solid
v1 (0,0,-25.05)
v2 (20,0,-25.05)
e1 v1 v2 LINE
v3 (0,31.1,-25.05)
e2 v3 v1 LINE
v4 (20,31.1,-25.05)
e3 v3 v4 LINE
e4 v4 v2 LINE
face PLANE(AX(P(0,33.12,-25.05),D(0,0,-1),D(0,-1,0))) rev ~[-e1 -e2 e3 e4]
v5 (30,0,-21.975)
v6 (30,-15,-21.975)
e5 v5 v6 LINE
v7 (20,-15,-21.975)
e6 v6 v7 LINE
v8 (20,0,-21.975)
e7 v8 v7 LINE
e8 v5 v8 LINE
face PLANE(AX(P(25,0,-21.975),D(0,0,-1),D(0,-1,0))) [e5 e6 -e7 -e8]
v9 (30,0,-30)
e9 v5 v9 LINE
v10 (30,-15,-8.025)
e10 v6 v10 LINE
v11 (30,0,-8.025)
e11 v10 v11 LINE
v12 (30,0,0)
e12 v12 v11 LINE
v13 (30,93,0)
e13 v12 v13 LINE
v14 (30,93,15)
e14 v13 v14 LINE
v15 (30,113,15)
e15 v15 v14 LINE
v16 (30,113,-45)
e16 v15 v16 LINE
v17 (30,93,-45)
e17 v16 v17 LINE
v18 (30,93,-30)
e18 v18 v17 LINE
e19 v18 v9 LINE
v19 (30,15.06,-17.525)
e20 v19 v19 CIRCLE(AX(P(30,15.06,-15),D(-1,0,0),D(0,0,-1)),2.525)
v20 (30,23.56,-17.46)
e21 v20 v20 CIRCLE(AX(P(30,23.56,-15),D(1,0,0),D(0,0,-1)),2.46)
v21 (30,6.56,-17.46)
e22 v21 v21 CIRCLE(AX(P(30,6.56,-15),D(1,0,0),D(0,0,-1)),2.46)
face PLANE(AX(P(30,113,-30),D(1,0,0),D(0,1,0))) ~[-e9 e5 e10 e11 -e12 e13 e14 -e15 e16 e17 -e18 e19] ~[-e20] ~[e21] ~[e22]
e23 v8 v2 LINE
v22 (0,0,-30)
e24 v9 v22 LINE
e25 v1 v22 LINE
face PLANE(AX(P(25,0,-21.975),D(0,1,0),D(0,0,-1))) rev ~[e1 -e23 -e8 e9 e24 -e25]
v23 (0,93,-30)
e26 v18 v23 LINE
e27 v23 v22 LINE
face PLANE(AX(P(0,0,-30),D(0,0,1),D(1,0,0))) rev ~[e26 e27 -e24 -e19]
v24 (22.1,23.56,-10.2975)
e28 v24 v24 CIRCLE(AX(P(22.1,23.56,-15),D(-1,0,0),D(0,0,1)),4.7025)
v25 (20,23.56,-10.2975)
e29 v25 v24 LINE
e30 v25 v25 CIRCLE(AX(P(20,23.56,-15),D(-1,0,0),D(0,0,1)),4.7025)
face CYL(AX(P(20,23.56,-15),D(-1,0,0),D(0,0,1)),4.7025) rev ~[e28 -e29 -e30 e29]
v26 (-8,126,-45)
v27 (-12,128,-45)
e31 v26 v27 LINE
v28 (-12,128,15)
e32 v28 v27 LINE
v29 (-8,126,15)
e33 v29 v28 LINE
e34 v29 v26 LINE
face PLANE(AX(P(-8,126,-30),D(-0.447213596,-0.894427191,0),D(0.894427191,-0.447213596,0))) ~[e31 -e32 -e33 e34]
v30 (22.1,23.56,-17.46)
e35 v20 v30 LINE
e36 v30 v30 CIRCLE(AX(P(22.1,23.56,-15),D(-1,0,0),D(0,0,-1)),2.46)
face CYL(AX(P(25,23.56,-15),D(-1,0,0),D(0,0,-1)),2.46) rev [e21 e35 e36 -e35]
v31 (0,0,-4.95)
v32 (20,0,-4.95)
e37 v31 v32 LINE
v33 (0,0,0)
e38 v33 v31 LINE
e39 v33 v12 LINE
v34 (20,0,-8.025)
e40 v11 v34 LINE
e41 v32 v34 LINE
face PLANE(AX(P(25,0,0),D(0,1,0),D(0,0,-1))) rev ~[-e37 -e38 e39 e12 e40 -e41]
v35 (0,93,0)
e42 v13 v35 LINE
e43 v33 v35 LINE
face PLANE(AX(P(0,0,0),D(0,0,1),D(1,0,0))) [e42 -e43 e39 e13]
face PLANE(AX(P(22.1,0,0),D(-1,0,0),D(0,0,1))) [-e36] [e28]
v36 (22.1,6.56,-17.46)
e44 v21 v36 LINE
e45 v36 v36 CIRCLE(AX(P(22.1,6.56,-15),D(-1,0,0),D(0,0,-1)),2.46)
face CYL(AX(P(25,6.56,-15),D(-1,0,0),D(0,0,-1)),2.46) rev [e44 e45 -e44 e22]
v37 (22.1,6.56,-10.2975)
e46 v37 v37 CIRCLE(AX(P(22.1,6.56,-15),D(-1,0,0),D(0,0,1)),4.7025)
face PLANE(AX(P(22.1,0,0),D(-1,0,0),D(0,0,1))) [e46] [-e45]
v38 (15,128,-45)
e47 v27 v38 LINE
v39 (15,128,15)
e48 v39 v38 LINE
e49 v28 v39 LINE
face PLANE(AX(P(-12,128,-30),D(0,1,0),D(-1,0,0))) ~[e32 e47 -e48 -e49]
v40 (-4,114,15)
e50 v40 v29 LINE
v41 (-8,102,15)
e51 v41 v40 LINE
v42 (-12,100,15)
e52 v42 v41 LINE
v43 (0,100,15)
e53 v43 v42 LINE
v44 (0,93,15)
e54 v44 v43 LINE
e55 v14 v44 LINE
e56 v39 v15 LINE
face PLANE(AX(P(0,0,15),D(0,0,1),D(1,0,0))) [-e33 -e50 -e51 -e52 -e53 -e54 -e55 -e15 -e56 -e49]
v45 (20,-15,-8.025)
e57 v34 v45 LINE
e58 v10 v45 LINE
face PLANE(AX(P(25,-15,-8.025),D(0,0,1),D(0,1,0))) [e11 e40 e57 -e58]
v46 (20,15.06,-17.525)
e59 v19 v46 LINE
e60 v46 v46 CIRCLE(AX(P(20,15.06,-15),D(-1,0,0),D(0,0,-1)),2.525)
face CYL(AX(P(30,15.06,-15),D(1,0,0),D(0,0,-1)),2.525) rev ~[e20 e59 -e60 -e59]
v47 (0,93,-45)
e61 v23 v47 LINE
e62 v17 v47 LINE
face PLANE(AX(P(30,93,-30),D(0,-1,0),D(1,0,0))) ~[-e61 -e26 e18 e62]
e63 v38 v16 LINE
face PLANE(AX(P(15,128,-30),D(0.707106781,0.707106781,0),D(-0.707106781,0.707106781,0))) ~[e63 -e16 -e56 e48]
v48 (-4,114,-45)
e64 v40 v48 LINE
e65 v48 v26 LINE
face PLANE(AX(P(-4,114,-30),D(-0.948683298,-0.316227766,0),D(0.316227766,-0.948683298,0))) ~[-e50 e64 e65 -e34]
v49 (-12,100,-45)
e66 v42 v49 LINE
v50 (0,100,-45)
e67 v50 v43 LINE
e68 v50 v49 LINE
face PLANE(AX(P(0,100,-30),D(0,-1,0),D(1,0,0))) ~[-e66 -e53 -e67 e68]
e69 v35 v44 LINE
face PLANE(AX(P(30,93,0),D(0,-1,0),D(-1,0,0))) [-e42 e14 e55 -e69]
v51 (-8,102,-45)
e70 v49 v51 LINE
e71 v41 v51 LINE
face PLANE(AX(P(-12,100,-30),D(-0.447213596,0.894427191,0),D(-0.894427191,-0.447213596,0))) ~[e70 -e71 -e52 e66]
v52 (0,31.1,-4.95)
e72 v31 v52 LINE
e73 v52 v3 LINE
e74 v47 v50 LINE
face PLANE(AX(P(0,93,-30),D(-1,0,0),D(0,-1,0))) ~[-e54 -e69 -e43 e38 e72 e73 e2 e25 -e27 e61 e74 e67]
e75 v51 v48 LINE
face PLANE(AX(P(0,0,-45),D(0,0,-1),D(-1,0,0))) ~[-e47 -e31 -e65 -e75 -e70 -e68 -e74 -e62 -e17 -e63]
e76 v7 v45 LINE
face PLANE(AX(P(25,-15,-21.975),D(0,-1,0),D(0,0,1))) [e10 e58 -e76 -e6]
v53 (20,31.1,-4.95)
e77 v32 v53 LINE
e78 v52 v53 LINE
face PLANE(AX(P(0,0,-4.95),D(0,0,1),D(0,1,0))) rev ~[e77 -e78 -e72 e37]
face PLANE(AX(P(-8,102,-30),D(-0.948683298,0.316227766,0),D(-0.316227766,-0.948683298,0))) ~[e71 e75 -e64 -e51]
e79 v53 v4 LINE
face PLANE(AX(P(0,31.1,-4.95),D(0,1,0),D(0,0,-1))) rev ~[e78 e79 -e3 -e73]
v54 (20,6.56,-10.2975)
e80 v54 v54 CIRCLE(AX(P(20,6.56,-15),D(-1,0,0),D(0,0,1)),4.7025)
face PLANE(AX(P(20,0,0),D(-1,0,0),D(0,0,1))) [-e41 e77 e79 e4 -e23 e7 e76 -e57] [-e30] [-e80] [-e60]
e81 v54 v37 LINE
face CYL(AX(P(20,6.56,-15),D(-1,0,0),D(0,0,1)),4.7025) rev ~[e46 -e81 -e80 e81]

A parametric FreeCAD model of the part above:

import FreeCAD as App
import Part
import Sketcher

V = App.Vector
Q = App.Units.Quantity


def add_polygon(sketch, points):
    """Adds a closed chain of lines whose ends are joined by coincident constraints."""
    first, n = sketch.GeometryCount, len(points)
    for a, b in zip(points, points[1:] + points[:1]):
        sketch.addGeometry(Part.LineSegment(App.Vector(*a, 0), App.Vector(*b, 0)), False)
    for i in range(n):
        sketch.addConstraint(Sketcher.Constraint("Coincident", first + i, 2, first + (i + 1) % n, 1))

doc = App.newDocument("Part")
params = doc.addObject("Spreadsheet::Sheet", "Params")
for row, (alias, value) in enumerate([
    ("sketch1_width", "25 mm"),
    ("sketch1_height", "40 mm"),
    ("pad1_length", "30 mm"),
    ("sketch2_diameter", "4.92 mm"),
    ("pocket1_length", "30 mm"),
    ("sketch3_height", "20.1 mm"),
    ("sketch3_width", "33.12 mm"),
    ("pocket2_length", "20 mm"),
    ("sketch4_height", "13.95 mm"),
    ("sketch4_width", "5 mm"),
    ("pad2_length", "15 mm"),
    ("sketch5_diameter", "4.92 mm"),
    ("pocket3_length", "2.1 mm"),
    ("sketch6_diameter", "4.92 mm"),
    ("pocket4_length", "10 mm"),
    ("sketch7_diameter", "4.92 mm"),
    ("pocket5_length", "2.1 mm"),
    ("sketch8_diameter", "4.92 mm"),
    ("sketch8_width", "40 mm"),
    ("sketch8_width2", "15 mm"),
    ("sketch8_height", "30 mm"),
    ("sketch8_height2", "13.95 mm"),
    ("pad3_length", "5 mm"),
    ("sketch9_width", "30 mm"),
    ("pad4_length", "30 mm"),
    ("sketch10_diameter", "5.05 mm"),
    ("pocket6_length", "30 mm"),
    ("sketch11_width", "12 mm"),
    ("sketch11_width2", "30 mm"),
    ("sketch11_width3", "27 mm"),
    ("sketch11_height", "43 mm"),
    ("pad5_length", "30 mm"),
    ("sketch12_width", "2.02 mm"),
    ("sketch12_height", "20.1 mm"),
    ("pad6_length", "20 mm"),
    ("sketch13_width", "30 mm"),
    ("sketch13_height", "20 mm"),
    ("sketch13_width2", "12 mm"),
    ("sketch13_width3", "27 mm"),
    ("sketch13_height2", "7 mm"),
    ("pad7_length", "15 mm"),
], start=1):
    params.set(f"A{row}", alias)
    params.set(f"B{row}", "=" + value)
    params.setAlias(f"B{row}", alias)

body = doc.addObject("PartDesign::Body", "Body")

sketch1 = body.newObject("Sketcher::SketchObject", "Sketch")
sketch1.AttachmentSupport = (doc.getObject("XY_Plane"), [""])
sketch1.MapMode = "FlatFace"
add_polygon(sketch1, [(0, 40), (0, 0), (25, 0), (25, 40)])
sketch1.addConstraint([
    Sketcher.Constraint("Vertical", 0),
    Sketcher.Constraint("Horizontal", 1),
    Sketcher.Constraint("Vertical", 2),
    Sketcher.Constraint("Horizontal", 3),
    Sketcher.Constraint("Coincident", 0, 2, -1, 1),
    Sketcher.Constraint("DistanceX", 1, 1, 1, 2, Q("25 mm")),
    Sketcher.Constraint("DistanceY", 0, 2, 0, 1, Q("40 mm")),
])
sketch1.setExpression("Constraints[9]", "Params.sketch1_width")
sketch1.setExpression("Constraints[10]", "Params.sketch1_height")
pad1 = body.newObject("PartDesign::Pad", "Pad")
pad1.Profile = sketch1
pad1.setExpression("Length", "Params.pad1_length")
pad1.Reversed = True

sketch2 = body.newObject("Sketcher::SketchObject", "Sketch001")
sketch2.AttachmentSupport = (doc.getObject("YZ_Plane"), [""])
sketch2.MapMode = "FlatFace"
sketch2.AttachmentOffset = App.Placement(V(0, 0, 25), App.Rotation())
sketch2.addGeometry(Part.Circle(V(6.56, -15, 0), V(0, 0, 1), 2.46), False)
sketch2.addConstraint([
    Sketcher.Constraint("Diameter", 0, Q("4.92 mm")),
    Sketcher.Constraint("DistanceY", 0, 3, -1, 1, Q("15 mm")),
    Sketcher.Constraint("DistanceX", -1, 1, 0, 3, Q("6.56 mm")),
])
sketch2.setExpression("Constraints[0]", "Params.sketch2_diameter")
pocket1 = body.newObject("PartDesign::Pocket", "Pocket")
pocket1.Profile = sketch2
pocket1.setExpression("Length", "Params.pocket1_length")

sketch3 = body.newObject("Sketcher::SketchObject", "Sketch002")
sketch3.AttachmentSupport = (doc.getObject("YZ_Plane"), [""])
sketch3.MapMode = "FlatFace"
add_polygon(sketch3, [(0, -25.05), (0, -4.95), (33.12, -4.95), (33.12, -25.05)])
sketch3.addConstraint([
    Sketcher.Constraint("Vertical", 0),
    Sketcher.Constraint("Horizontal", 1),
    Sketcher.Constraint("Vertical", 2),
    Sketcher.Constraint("Horizontal", 3),
    Sketcher.Constraint("PointOnObject", 0, 2, -2),
    Sketcher.Constraint("DistanceY", 0, 1, 0, 2, Q("20.1 mm")),
    Sketcher.Constraint("DistanceX", 1, 1, 1, 2, Q("33.12 mm")),
    Sketcher.Constraint("DistanceY", 0, 2, -1, 1, Q("4.95 mm")),
])
sketch3.setExpression("Constraints[9]", "Params.sketch3_height")
sketch3.setExpression("Constraints[10]", "Params.sketch3_width")
pocket2 = body.newObject("PartDesign::Pocket", "Pocket001")
pocket2.Profile = sketch3
pocket2.setExpression("Length", "Params.pocket2_length")
pocket2.Reversed = True

sketch4 = body.newObject("Sketcher::SketchObject", "Sketch003")
sketch4.AttachmentSupport = (doc.getObject("XZ_Plane"), [""])
sketch4.MapMode = "FlatFace"
add_polygon(sketch4, [(25, -8.025), (20, -8.025), (20, -21.975), (25, -21.975)])
sketch4.addConstraint([
    Sketcher.Constraint("Horizontal", 0),
    Sketcher.Constraint("Vertical", 1),
    Sketcher.Constraint("Horizontal", 2),
    Sketcher.Constraint("Vertical", 3),
    Sketcher.Constraint("DistanceY", 1, 2, 1, 1, Q("13.95 mm")),
    Sketcher.Constraint("DistanceX", 0, 2, 0, 1, Q("5 mm")),
    Sketcher.Constraint("DistanceX", -1, 1, 0, 2, Q("20 mm")),
    Sketcher.Constraint("DistanceY", 0, 2, -1, 1, Q("8.025 mm")),
])
sketch4.setExpression("Constraints[8]", "Params.sketch4_height")
sketch4.setExpression("Constraints[9]", "Params.sketch4_width")
pad2 = body.newObject("PartDesign::Pad", "Pad001")
pad2.Profile = sketch4
pad2.setExpression("Length", "Params.pad2_length")

sketch5 = body.newObject("Sketcher::SketchObject", "Sketch004")
sketch5.AttachmentSupport = (doc.getObject("YZ_Plane"), [""])
sketch5.MapMode = "FlatFace"
sketch5.AttachmentOffset = App.Placement(V(0, 0, 20), App.Rotation())
sketch5.addGeometry([
    Part.Circle(V(6.56, -15, 0), V(0, 0, 1), 4.7025),
    Part.Circle(V(6.56, -15, 0), V(0, 0, 1), 2.46),
], False)
sketch5.addConstraint([
    Sketcher.Constraint("Coincident", 1, 3, 0, 3),
    Sketcher.Constraint("Diameter", 0, Q("9.405 mm")),
    Sketcher.Constraint("Diameter", 1, Q("4.92 mm")),
    Sketcher.Constraint("DistanceY", 0, 3, -1, 1, Q("15 mm")),
    Sketcher.Constraint("DistanceX", -1, 1, 0, 3, Q("6.56 mm")),
])
sketch5.setExpression("Constraints[2]", "Params.sketch5_diameter")
pocket3 = body.newObject("PartDesign::Pocket", "Pocket002")
pocket3.Profile = sketch5
pocket3.setExpression("Length", "Params.pocket3_length")
pocket3.Reversed = True

sketch6 = body.newObject("Sketcher::SketchObject", "Sketch005")
sketch6.AttachmentSupport = (doc.getObject("YZ_Plane"), [""])
sketch6.MapMode = "FlatFace"
sketch6.AttachmentOffset = App.Placement(V(0, 0, 25), App.Rotation())
sketch6.addGeometry(Part.Circle(V(23.56, -15, 0), V(0, 0, 1), 2.46), False)
sketch6.addConstraint([
    Sketcher.Constraint("Diameter", 0, Q("4.92 mm")),
    Sketcher.Constraint("DistanceY", 0, 3, -1, 1, Q("15 mm")),
    Sketcher.Constraint("DistanceX", -1, 1, 0, 3, Q("23.56 mm")),
])
sketch6.setExpression("Constraints[0]", "Params.sketch6_diameter")
pocket4 = body.newObject("PartDesign::Pocket", "Pocket003")
pocket4.Profile = sketch6
pocket4.setExpression("Length", "Params.pocket4_length")

sketch7 = body.newObject("Sketcher::SketchObject", "Sketch006")
sketch7.AttachmentSupport = (doc.getObject("YZ_Plane"), [""])
sketch7.MapMode = "FlatFace"
sketch7.AttachmentOffset = App.Placement(V(0, 0, 20), App.Rotation())
sketch7.addGeometry([
    Part.Circle(V(23.56, -15, 0), V(0, 0, 1), 4.7025),
    Part.Circle(V(23.56, -15, 0), V(0, 0, 1), 2.46),
], False)
sketch7.addConstraint([
    Sketcher.Constraint("Coincident", 1, 3, 0, 3),
    Sketcher.Constraint("Diameter", 0, Q("9.405 mm")),
    Sketcher.Constraint("Diameter", 1, Q("4.92 mm")),
    Sketcher.Constraint("DistanceY", 0, 3, -1, 1, Q("15 mm")),
    Sketcher.Constraint("DistanceX", -1, 1, 0, 3, Q("23.56 mm")),
])
sketch7.setExpression("Constraints[2]", "Params.sketch7_diameter")
pocket5 = body.newObject("PartDesign::Pocket", "Pocket004")
pocket5.Profile = sketch7
pocket5.setExpression("Length", "Params.pocket5_length")
pocket5.Reversed = True

sketch8 = body.newObject("Sketcher::SketchObject", "Sketch007")
sketch8.AttachmentSupport = (doc.getObject("YZ_Plane"), [""])
sketch8.MapMode = "FlatFace"
sketch8.AttachmentOffset = App.Placement(V(0, 0, 25), App.Rotation())
add_polygon(sketch8, [(0, -30), (40, -30), (40, 0), (0, 0), (0, -8.025), (-15, -8.025), (-15, -21.975), (0, -21.975)])
sketch8.addGeometry(Part.Circle(V(6.56, -15, 0), V(0, 0, 1), 2.46), False)
sketch8.addGeometry(Part.Circle(V(23.56, -15, 0), V(0, 0, 1), 2.46), False)
sketch8.addConstraint([
    Sketcher.Constraint("Horizontal", 0),
    Sketcher.Constraint("Vertical", 1),
    Sketcher.Constraint("Horizontal", 2),
    Sketcher.Constraint("Vertical", 3),
    Sketcher.Constraint("Horizontal", 4),
    Sketcher.Constraint("Vertical", 5),
    Sketcher.Constraint("Horizontal", 6),
    Sketcher.Constraint("Vertical", 7),
    Sketcher.Constraint("Coincident", 2, 2, -1, 1),
    Sketcher.Constraint("Equal", 8, 9),
    Sketcher.Constraint("PointOnObject", 6, 2, -2),
    Sketcher.Constraint("Horizontal", 8, 3, 9, 3),
    Sketcher.Constraint("Equal", 3, 7),
    Sketcher.Constraint("Diameter", 8, Q("4.92 mm")),
    Sketcher.Constraint("DistanceX", 0, 1, 0, 2, Q("40 mm")),
    Sketcher.Constraint("DistanceX", 4, 2, 4, 1, Q("15 mm")),
    Sketcher.Constraint("DistanceY", 1, 1, 1, 2, Q("30 mm")),
    Sketcher.Constraint("DistanceY", 8, 3, -1, 1, Q("15 mm")),
    Sketcher.Constraint("DistanceX", 8, 3, 9, 3, Q("17 mm")),
    Sketcher.Constraint("DistanceY", 5, 2, 5, 1, Q("13.95 mm")),
    Sketcher.Constraint("DistanceX", -1, 1, 8, 3, Q("6.56 mm")),
])
sketch8.setExpression("Constraints[21]", "Params.sketch8_diameter")
sketch8.setExpression("Constraints[22]", "Params.sketch8_width")
sketch8.setExpression("Constraints[23]", "Params.sketch8_width2")
sketch8.setExpression("Constraints[24]", "Params.sketch8_height")
sketch8.setExpression("Constraints[27]", "Params.sketch8_height2")
pad3 = body.newObject("PartDesign::Pad", "Pad002")
pad3.Profile = sketch8
pad3.setExpression("Length", "Params.pad3_length")

sketch9 = body.newObject("Sketcher::SketchObject", "Sketch008")
sketch9.AttachmentSupport = (doc.getObject("XZ_Plane"), [""])
sketch9.MapMode = "FlatFace"
sketch9.AttachmentOffset = App.Placement(V(0, 0, -40), App.Rotation())
add_polygon(sketch9, [(30, -30), (0, -30), (0, 0), (30, 0)])
sketch9.addConstraint([
    Sketcher.Constraint("Horizontal", 0),
    Sketcher.Constraint("Vertical", 1),
    Sketcher.Constraint("Horizontal", 2),
    Sketcher.Constraint("Vertical", 3),
    Sketcher.Constraint("Coincident", 1, 2, -1, 1),
    Sketcher.Constraint("Equal", 2, 1),
    Sketcher.Constraint("DistanceX", 0, 2, 0, 1, Q("30 mm")),
])
sketch9.setExpression("Constraints[10]", "Params.sketch9_width")
pad4 = body.newObject("PartDesign::Pad", "Pad003")
pad4.Profile = sketch9
pad4.setExpression("Length", "Params.pad4_length")
pad4.Reversed = True

sketch10 = body.newObject("Sketcher::SketchObject", "Sketch009")
sketch10.AttachmentSupport = (doc.getObject("YZ_Plane"), [""])
sketch10.MapMode = "FlatFace"
sketch10.AttachmentOffset = App.Placement(V(0, 0, 30), App.Rotation())
sketch10.addGeometry(Part.Circle(V(15.06, -15, 0), V(0, 0, 1), 2.525), False)
sketch10.addConstraint([
    Sketcher.Constraint("Diameter", 0, Q("5.05 mm")),
    Sketcher.Constraint("DistanceY", 0, 3, -1, 1, Q("15 mm")),
    Sketcher.Constraint("DistanceX", -1, 1, 0, 3, Q("15.06 mm")),
])
sketch10.setExpression("Constraints[0]", "Params.sketch10_diameter")
pocket6 = body.newObject("PartDesign::Pocket", "Pocket005")
pocket6.Profile = sketch10
pocket6.setExpression("Length", "Params.pocket6_length")

sketch11 = body.newObject("Sketcher::SketchObject", "Sketch010")
sketch11.AttachmentSupport = (doc.getObject("XY_Plane"), [""])
sketch11.MapMode = "FlatFace"
add_polygon(sketch11, [(0, 70), (30, 70), (30, 113), (15, 128), (-12, 128), (-8, 126), (-4, 114), (-8, 102), (-12, 100), (0, 100)])
sketch11.addConstraint([
    Sketcher.Constraint("Horizontal", 0),
    Sketcher.Constraint("Vertical", 1),
    Sketcher.Constraint("Horizontal", 3),
    Sketcher.Constraint("Horizontal", 8),
    Sketcher.Constraint("Vertical", 9),
    Sketcher.Constraint("PointOnObject", 8, 2, -2),
    Sketcher.Constraint("Vertical", 4, 2, 6, 2),
    Sketcher.Constraint("Vertical", 3, 2, 7, 2),
    Sketcher.Constraint("Equal", 0, 9),
    Sketcher.Constraint("Equal", 5, 6),
    Sketcher.Constraint("Equal", 4, 7),
    Sketcher.Constraint("DistanceX", 8, 1, 8, 2, Q("12 mm")),
    Sketcher.Constraint("DistanceY", 5, 2, 4, 2, Q("12 mm")),
    Sketcher.Constraint("DistanceY", 7, 2, 3, 2, Q("28 mm")),
    Sketcher.Constraint("DistanceX", 0, 1, 0, 2, Q("30 mm")),
    Sketcher.Constraint("DistanceX", 3, 2, 3, 1, Q("27 mm")),
    Sketcher.Constraint("DistanceY", 1, 1, 1, 2, Q("43 mm")),
    Sketcher.Constraint("DistanceY", -1, 1, 0, 2, Q("70 mm")),
    Sketcher.Constraint("DistanceX", 4, 2, -1, 1, Q("8 mm")),
    Sketcher.Constraint("DistanceX", 5, 2, -1, 1, Q("4 mm")),
])
sketch11.setExpression("Constraints[21]", "Params.sketch11_width")
sketch11.setExpression("Constraints[24]", "Params.sketch11_width2")
sketch11.setExpression("Constraints[25]", "Params.sketch11_width3")
sketch11.setExpression("Constraints[26]", "Params.sketch11_height")
pad5 = body.newObject("PartDesign::Pad", "Pad004")
pad5.Profile = sketch11
pad5.setExpression("Length", "Params.pad5_length")
pad5.Reversed = True

sketch12 = body.newObject("Sketcher::SketchObject", "Sketch011")
sketch12.AttachmentSupport = (doc.getObject("YZ_Plane"), [""])
sketch12.MapMode = "FlatFace"
add_polygon(sketch12, [(33.12, -4.95), (33.12, -25.05), (31.1, -25.05), (31.1, -4.95)])
sketch12.addConstraint([
    Sketcher.Constraint("Vertical", 0),
    Sketcher.Constraint("Horizontal", 1),
    Sketcher.Constraint("Vertical", 2),
    Sketcher.Constraint("Horizontal", 3),
    Sketcher.Constraint("DistanceX", 1, 2, 1, 1, Q("2.02 mm")),
    Sketcher.Constraint("DistanceY", 0, 2, 0, 1, Q("20.1 mm")),
    Sketcher.Constraint("DistanceX", -1, 1, 1, 2, Q("31.1 mm")),
    Sketcher.Constraint("DistanceY", 0, 2, -1, 1, Q("25.05 mm")),
])
sketch12.setExpression("Constraints[8]", "Params.sketch12_width")
sketch12.setExpression("Constraints[9]", "Params.sketch12_height")
pad6 = body.newObject("PartDesign::Pad", "Pad005")
pad6.Profile = sketch12
pad6.setExpression("Length", "Params.pad6_length")

sketch13 = body.newObject("Sketcher::SketchObject", "Sketch012")
sketch13.AttachmentSupport = (doc.getObject("XY_Plane"), [""])
sketch13.MapMode = "FlatFace"
add_polygon(sketch13, [(-12, 100), (0, 100), (0, 93), (30, 93), (30, 113), (15, 128), (-12, 128), (-8, 126), (-4, 114), (-8, 102)])
sketch13.addConstraint([
    Sketcher.Constraint("Horizontal", 0),
    Sketcher.Constraint("Vertical", 1),
    Sketcher.Constraint("Horizontal", 2),
    Sketcher.Constraint("Vertical", 3),
    Sketcher.Constraint("Horizontal", 5),
    Sketcher.Constraint("PointOnObject", 0, 2, -2),
    Sketcher.Constraint("Vertical", 6, 2, 8, 2),
    Sketcher.Constraint("Vertical", 5, 2, 9, 2),
    Sketcher.Constraint("Equal", 7, 8),
    Sketcher.Constraint("Equal", 6, 9),
    Sketcher.Constraint("DistanceX", 2, 1, 2, 2, Q("30 mm")),
    Sketcher.Constraint("DistanceY", 3, 1, 3, 2, Q("20 mm")),
    Sketcher.Constraint("DistanceX", 0, 1, 0, 2, Q("12 mm")),
    Sketcher.Constraint("DistanceX", 5, 2, 5, 1, Q("27 mm")),
    Sketcher.Constraint("DistanceY", 1, 2, 1, 1, Q("7 mm")),
    Sketcher.Constraint("Angle", 4, Q("135 deg")),
    Sketcher.Constraint("DistanceY", -1, 1, 0, 2, Q("100 mm")),
    Sketcher.Constraint("DistanceX", 6, 2, -1, 1, Q("8 mm")),
    Sketcher.Constraint("DistanceY", -1, 1, 6, 2, Q("126 mm")),
    Sketcher.Constraint("DistanceX", 7, 2, -1, 1, Q("4 mm")),
])
sketch13.setExpression("Constraints[20]", "Params.sketch13_width")
sketch13.setExpression("Constraints[21]", "Params.sketch13_height")
sketch13.setExpression("Constraints[22]", "Params.sketch13_width2")
sketch13.setExpression("Constraints[23]", "Params.sketch13_width3")
sketch13.setExpression("Constraints[24]", "Params.sketch13_height2")
pad7 = body.newObject("PartDesign::Pad", "Pad006")
pad7.Profile = sketch13
pad7.setExpression("Length", "Params.pad7_length")
doc.recompute()

datumplane = body.newObject("PartDesign::Plane", "DatumPlane")
datumplane.AttachmentSupport = (doc.getObject("XY_Plane"), [""])
datumplane.MapMode = "FlatFace"
datumplane.AttachmentOffset = App.Placement(V(0, 0, -15), App.Rotation())
mirrored = body.newObject("PartDesign::Mirrored", "Mirrored")
mirrored.Originals = [pad7]
mirrored.MirrorPlane = (datumplane, [""])
body.Tip = mirrored

doc.recompute()
